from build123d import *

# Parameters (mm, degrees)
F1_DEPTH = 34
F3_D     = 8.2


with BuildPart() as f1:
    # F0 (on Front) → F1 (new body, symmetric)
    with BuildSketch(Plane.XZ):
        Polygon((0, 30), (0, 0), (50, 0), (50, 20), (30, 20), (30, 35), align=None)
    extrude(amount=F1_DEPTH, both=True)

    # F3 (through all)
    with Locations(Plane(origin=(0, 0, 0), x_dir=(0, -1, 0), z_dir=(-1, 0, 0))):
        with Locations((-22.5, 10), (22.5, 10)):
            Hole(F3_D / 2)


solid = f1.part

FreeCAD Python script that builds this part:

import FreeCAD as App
import Part
import Sketcher
from FreeCAD import Vector


def add_polygon(sketch, points):
    """Adds a closed chain of lines whose ends are joined by coincident constraints."""
    first, n = sketch.GeometryCount, len(points)
    for a, b in zip(points, points[1:] + points[:1]):
        sketch.addGeometry(Part.LineSegment(App.Vector(*a, 0), App.Vector(*b, 0)), False)
    for i in range(n):
        sketch.addConstraint(Sketcher.Constraint("Coincident", first + i, 2, first + (i + 1) % n, 1))

doc = App.newDocument("Part")
body = doc.addObject("PartDesign::Body", "Body")

# Sketch on XZ plane
sketch1 = body.newObject("Sketcher::SketchObject", "Sketch")
sketch1.AttachmentSupport = (doc.getObject("XZ_Plane"), [""])
sketch1.MapMode = "FlatFace"
add_polygon(sketch1, [(0, 30), (0, 0), (50, 0), (50, 20), (30, 20), (30, 35)])  # lines 0-5
sketch1.addConstraint([
    Sketcher.Constraint("Vertical", 0),
    Sketcher.Constraint("Horizontal", 1),
    Sketcher.Constraint("Vertical", 2),
    Sketcher.Constraint("Horizontal", 3),
    Sketcher.Constraint("Vertical", 4),
    Sketcher.Constraint("Coincident", 0, 2, -1, 1),
    Sketcher.Constraint("Equal", 3, 2),
    Sketcher.Constraint("DistanceX", 1, 1, 1, 2, 50.0),
    Sketcher.Constraint("DistanceX", 3, 2, 3, 1, 20.0),
    Sketcher.Constraint("DistanceY", 0, 2, 0, 1, 30.0),
    Sketcher.Constraint("DistanceY", 4, 1, 4, 2, 15.0),
])
pad1 = body.newObject("PartDesign::Pad", "Pad")
pad1.Profile = sketch1
pad1.Length = 68
pad1.Midplane = True

# Sketch on YZ plane
sketch2 = body.newObject("Sketcher::SketchObject", "Sketch001")
sketch2.AttachmentSupport = (doc.getObject("YZ_Plane"), [""])
sketch2.MapMode = "FlatFace"
sketch2.addGeometry([
    Part.Circle(Vector(22.5, 10, 0), Vector(0, 0, 1), 4.1),
    Part.Circle(Vector(-22.5, 10, 0), Vector(0, 0, 1), 4.1),
], False)
sketch2.addConstraint([
    Sketcher.Constraint("Equal", 0, 1),
    Sketcher.Constraint("Symmetric", 0, 3, 1, 3, -2),
    Sketcher.Constraint("Diameter", 0, 8.2),
    Sketcher.Constraint("DistanceY", -1, 1, 0, 3, 10.0),
    Sketcher.Constraint("DistanceX", 1, 3, 0, 3, 45.0),
])
doc.recompute()
hole = body.newObject("PartDesign::Hole", "Hole")
hole.Profile = sketch2
hole.ThreadType = "None"
hole.Diameter = 8.2
hole.DepthType = "ThroughAll"
hole.Reversed = True

doc.recompute()
